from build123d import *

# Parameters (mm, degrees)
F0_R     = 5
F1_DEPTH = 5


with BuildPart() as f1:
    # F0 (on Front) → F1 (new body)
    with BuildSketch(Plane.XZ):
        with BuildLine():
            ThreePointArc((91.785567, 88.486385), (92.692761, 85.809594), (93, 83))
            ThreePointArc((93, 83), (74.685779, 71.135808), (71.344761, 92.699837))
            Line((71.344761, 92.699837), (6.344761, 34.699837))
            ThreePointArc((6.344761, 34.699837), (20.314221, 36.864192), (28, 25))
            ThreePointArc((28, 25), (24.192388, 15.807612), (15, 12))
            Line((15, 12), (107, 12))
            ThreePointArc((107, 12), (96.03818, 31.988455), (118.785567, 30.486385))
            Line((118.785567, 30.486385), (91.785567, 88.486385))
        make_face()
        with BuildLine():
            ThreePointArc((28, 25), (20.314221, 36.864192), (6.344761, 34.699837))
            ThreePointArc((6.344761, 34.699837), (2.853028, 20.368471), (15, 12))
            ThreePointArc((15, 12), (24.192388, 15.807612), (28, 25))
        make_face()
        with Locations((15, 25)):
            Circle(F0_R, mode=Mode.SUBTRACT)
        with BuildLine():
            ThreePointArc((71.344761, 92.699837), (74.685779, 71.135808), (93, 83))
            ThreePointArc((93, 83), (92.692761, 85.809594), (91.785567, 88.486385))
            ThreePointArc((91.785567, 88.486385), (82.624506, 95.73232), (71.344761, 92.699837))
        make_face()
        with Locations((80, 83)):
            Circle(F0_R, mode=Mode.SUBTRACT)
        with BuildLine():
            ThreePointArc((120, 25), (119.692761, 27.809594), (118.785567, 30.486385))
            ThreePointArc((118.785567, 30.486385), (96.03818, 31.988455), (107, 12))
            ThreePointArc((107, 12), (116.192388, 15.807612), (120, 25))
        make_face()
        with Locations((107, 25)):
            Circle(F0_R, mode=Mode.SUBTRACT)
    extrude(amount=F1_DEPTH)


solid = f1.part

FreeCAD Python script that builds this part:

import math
import FreeCAD as App
import Part
import Sketcher

V = App.Vector
Q = App.Units.Quantity

doc = App.newDocument("Part")
params = doc.addObject("Spreadsheet::Sheet", "Params")
for row, (alias, value) in enumerate([
    ("sketch1_diameter", "10 mm"),
    ("sketch1_radius", "13 mm"),
    ("sketch1_width", "92 mm"),
    ("pad1_length", "5 mm"),
], start=1):
    params.set(f"A{row}", alias)
    params.set(f"B{row}", "=" + value)
    params.setAlias(f"B{row}", alias)

body = doc.addObject("PartDesign::Body", "Body")

sketch1 = body.newObject("Sketcher::SketchObject", "Sketch")
sketch1.AttachmentSupport = (doc.getObject("XZ_Plane"), [""])
sketch1.MapMode = "FlatFace"
sketch1.addGeometry(Part.LineSegment(V(119, 30, 0), V(92, 88, 0)), False)
sketch1.addGeometry(Part.ArcOfCircle(Part.Circle(V(80, 83, 0), V(0, 0, 1), 13), math.radians(25), math.radians(132)), False)
sketch1.addGeometry(Part.LineSegment(V(71, 93, 0), V(6, 35, 0)), False)
sketch1.addGeometry(Part.ArcOfCircle(Part.Circle(V(15, 25, 0), V(0, 0, 1), 13), math.radians(132), math.radians(270)), False)
sketch1.addGeometry(Part.LineSegment(V(15, 12, 0), V(107, 12, 0)), False)
sketch1.addGeometry(Part.ArcOfCircle(Part.Circle(V(107, 25, 0), V(0, 0, 1), 13), math.radians(-90), math.radians(0)), False)
sketch1.addGeometry(Part.ArcOfCircle(Part.Circle(V(107, 25, 0), V(0, 0, 1), 13), math.radians(0), math.radians(25)), False)
sketch1.addGeometry(Part.Circle(V(15, 25, 0), V(0, 0, 1), 5), False)
sketch1.addGeometry(Part.Circle(V(107, 25, 0), V(0, 0, 1), 5), False)
sketch1.addGeometry(Part.Circle(V(80, 83, 0), V(0, 0, 1), 5), False)
sketch1.addConstraint(Sketcher.Constraint("Tangent", 0, 2, 1, 1))
sketch1.addConstraint(Sketcher.Constraint("Tangent", 1, 2, 2, 1))
sketch1.addConstraint(Sketcher.Constraint("Tangent", 2, 2, 3, 1))
sketch1.addConstraint(Sketcher.Constraint("Tangent", 3, 2, 4, 1))
sketch1.addConstraint(Sketcher.Constraint("Tangent", 4, 2, 5, 1))
sketch1.addConstraint(Sketcher.Constraint("Tangent", 5, 2, 6, 1))
sketch1.addConstraint(Sketcher.Constraint("Tangent", 6, 2, 0, 1))
sketch1.addConstraint(Sketcher.Constraint("Horizontal", 4))
sketch1.addConstraint(Sketcher.Constraint("Coincident", 7, 3, 3, 3))
sketch1.addConstraint(Sketcher.Constraint("Coincident", 8, 3, 5, 3))
sketch1.addConstraint(Sketcher.Constraint("Coincident", 9, 3, 1, 3))
sketch1.addConstraint(Sketcher.Constraint("Equal", 1, 3))
sketch1.addConstraint(Sketcher.Constraint("Equal", 3, 5))
sketch1.addConstraint(Sketcher.Constraint("Equal", 7, 8))
sketch1.addConstraint(Sketcher.Constraint("Equal", 8, 9))
sketch1.addConstraint(Sketcher.Constraint("Horizontal", 8, 3, 5, 2))
sketch1.addConstraint(Sketcher.Constraint("Diameter", 7, Q("10 mm")))
sketch1.addConstraint(Sketcher.Constraint("Radius", 1, Q("13 mm")))
sketch1.addConstraint(Sketcher.Constraint("DistanceX", 4, 1, 4, 2, Q("92 mm")))
sketch1.addConstraint(Sketcher.Constraint("DistanceX", -1, 1, 1, 3, Q("80 mm")))
sketch1.addConstraint(Sketcher.Constraint("DistanceY", -1, 1, 1, 3, Q("83 mm")))
sketch1.addConstraint(Sketcher.Constraint("DistanceX", -1, 1, 3, 3, Q("15.000001 mm")))
sketch1.addConstraint(Sketcher.Constraint("DistanceY", -1, 1, 3, 3, Q("25 mm")))
sketch1.addConstraint(Sketcher.Constraint("Radius", 6, Q("13.000008 mm")))
sketch1.setExpression("Constraints[16]", "Params.sketch1_diameter")
sketch1.setExpression("Constraints[17]", "Params.sketch1_radius")
sketch1.setExpression("Constraints[18]", "Params.sketch1_width")
pad1 = body.newObject("PartDesign::Pad", "Pad")
pad1.Profile = sketch1
pad1.setExpression("Length", "Params.pad1_length")

doc.recompute()
